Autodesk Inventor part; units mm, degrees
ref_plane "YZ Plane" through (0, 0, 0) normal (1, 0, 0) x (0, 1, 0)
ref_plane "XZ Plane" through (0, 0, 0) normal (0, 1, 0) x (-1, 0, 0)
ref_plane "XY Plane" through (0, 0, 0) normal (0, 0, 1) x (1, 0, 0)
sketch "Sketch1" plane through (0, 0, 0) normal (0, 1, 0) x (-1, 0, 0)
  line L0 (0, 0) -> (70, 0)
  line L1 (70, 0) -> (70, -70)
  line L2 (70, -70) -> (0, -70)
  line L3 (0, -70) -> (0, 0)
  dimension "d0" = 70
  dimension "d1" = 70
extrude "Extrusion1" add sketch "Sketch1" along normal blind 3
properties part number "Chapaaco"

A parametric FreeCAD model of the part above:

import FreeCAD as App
import Part
import Sketcher
Q = App.Units.Quantity

doc = App.newDocument("Part")
params = doc.addObject("Spreadsheet::Sheet", "Params")
for row, (alias, value) in enumerate([
    ("sketch1_width", "70 mm"),
    ("pad1_length", "3 mm"),
], start=1):
    params.set(f"A{row}", alias)
    params.set(f"B{row}", "=" + value)
    params.setAlias(f"B{row}", alias)

body = doc.addObject("PartDesign::Body", "Body")

sketch1 = body.newObject("Sketcher::SketchObject", "Sketch")
sketch1.AttachmentSupport = (doc.getObject("XZ_Plane"), [""])
sketch1.MapMode = "FlatFace"
sketch1.addGeometry(Part.LineSegment(App.Vector(-70, 0, 0), App.Vector(0, 0, 0)), False)
sketch1.addGeometry(Part.LineSegment(App.Vector(0, 0, 0), App.Vector(0, -70, 0)), False)
sketch1.addGeometry(Part.LineSegment(App.Vector(0, -70, 0), App.Vector(-70, -70, 0)), False)
sketch1.addGeometry(Part.LineSegment(App.Vector(-70, -70, 0), App.Vector(-70, 0, 0)), False)
sketch1.addConstraint(Sketcher.Constraint("Coincident", 0, 2, 1, 1))
sketch1.addConstraint(Sketcher.Constraint("Coincident", 1, 2, 2, 1))
sketch1.addConstraint(Sketcher.Constraint("Coincident", 2, 2, 3, 1))
sketch1.addConstraint(Sketcher.Constraint("Coincident", 3, 2, 0, 1))
sketch1.addConstraint(Sketcher.Constraint("Horizontal", 0))
sketch1.addConstraint(Sketcher.Constraint("Vertical", 1))
sketch1.addConstraint(Sketcher.Constraint("Horizontal", 2))
sketch1.addConstraint(Sketcher.Constraint("Vertical", 3))
sketch1.addConstraint(Sketcher.Constraint("Coincident", 0, 2, -1, 1))
sketch1.addConstraint(Sketcher.Constraint("Equal", 2, 1))
sketch1.addConstraint(Sketcher.Constraint("DistanceX", 0, 1, 0, 2, Q("70 mm")))
sketch1.setExpression("Constraints[10]", "Params.sketch1_width")
pad1 = body.newObject("PartDesign::Pad", "Pad")
pad1.Profile = sketch1
pad1.setExpression("Length", "Params.pad1_length")
pad1.Reversed = True

doc.recompute()
